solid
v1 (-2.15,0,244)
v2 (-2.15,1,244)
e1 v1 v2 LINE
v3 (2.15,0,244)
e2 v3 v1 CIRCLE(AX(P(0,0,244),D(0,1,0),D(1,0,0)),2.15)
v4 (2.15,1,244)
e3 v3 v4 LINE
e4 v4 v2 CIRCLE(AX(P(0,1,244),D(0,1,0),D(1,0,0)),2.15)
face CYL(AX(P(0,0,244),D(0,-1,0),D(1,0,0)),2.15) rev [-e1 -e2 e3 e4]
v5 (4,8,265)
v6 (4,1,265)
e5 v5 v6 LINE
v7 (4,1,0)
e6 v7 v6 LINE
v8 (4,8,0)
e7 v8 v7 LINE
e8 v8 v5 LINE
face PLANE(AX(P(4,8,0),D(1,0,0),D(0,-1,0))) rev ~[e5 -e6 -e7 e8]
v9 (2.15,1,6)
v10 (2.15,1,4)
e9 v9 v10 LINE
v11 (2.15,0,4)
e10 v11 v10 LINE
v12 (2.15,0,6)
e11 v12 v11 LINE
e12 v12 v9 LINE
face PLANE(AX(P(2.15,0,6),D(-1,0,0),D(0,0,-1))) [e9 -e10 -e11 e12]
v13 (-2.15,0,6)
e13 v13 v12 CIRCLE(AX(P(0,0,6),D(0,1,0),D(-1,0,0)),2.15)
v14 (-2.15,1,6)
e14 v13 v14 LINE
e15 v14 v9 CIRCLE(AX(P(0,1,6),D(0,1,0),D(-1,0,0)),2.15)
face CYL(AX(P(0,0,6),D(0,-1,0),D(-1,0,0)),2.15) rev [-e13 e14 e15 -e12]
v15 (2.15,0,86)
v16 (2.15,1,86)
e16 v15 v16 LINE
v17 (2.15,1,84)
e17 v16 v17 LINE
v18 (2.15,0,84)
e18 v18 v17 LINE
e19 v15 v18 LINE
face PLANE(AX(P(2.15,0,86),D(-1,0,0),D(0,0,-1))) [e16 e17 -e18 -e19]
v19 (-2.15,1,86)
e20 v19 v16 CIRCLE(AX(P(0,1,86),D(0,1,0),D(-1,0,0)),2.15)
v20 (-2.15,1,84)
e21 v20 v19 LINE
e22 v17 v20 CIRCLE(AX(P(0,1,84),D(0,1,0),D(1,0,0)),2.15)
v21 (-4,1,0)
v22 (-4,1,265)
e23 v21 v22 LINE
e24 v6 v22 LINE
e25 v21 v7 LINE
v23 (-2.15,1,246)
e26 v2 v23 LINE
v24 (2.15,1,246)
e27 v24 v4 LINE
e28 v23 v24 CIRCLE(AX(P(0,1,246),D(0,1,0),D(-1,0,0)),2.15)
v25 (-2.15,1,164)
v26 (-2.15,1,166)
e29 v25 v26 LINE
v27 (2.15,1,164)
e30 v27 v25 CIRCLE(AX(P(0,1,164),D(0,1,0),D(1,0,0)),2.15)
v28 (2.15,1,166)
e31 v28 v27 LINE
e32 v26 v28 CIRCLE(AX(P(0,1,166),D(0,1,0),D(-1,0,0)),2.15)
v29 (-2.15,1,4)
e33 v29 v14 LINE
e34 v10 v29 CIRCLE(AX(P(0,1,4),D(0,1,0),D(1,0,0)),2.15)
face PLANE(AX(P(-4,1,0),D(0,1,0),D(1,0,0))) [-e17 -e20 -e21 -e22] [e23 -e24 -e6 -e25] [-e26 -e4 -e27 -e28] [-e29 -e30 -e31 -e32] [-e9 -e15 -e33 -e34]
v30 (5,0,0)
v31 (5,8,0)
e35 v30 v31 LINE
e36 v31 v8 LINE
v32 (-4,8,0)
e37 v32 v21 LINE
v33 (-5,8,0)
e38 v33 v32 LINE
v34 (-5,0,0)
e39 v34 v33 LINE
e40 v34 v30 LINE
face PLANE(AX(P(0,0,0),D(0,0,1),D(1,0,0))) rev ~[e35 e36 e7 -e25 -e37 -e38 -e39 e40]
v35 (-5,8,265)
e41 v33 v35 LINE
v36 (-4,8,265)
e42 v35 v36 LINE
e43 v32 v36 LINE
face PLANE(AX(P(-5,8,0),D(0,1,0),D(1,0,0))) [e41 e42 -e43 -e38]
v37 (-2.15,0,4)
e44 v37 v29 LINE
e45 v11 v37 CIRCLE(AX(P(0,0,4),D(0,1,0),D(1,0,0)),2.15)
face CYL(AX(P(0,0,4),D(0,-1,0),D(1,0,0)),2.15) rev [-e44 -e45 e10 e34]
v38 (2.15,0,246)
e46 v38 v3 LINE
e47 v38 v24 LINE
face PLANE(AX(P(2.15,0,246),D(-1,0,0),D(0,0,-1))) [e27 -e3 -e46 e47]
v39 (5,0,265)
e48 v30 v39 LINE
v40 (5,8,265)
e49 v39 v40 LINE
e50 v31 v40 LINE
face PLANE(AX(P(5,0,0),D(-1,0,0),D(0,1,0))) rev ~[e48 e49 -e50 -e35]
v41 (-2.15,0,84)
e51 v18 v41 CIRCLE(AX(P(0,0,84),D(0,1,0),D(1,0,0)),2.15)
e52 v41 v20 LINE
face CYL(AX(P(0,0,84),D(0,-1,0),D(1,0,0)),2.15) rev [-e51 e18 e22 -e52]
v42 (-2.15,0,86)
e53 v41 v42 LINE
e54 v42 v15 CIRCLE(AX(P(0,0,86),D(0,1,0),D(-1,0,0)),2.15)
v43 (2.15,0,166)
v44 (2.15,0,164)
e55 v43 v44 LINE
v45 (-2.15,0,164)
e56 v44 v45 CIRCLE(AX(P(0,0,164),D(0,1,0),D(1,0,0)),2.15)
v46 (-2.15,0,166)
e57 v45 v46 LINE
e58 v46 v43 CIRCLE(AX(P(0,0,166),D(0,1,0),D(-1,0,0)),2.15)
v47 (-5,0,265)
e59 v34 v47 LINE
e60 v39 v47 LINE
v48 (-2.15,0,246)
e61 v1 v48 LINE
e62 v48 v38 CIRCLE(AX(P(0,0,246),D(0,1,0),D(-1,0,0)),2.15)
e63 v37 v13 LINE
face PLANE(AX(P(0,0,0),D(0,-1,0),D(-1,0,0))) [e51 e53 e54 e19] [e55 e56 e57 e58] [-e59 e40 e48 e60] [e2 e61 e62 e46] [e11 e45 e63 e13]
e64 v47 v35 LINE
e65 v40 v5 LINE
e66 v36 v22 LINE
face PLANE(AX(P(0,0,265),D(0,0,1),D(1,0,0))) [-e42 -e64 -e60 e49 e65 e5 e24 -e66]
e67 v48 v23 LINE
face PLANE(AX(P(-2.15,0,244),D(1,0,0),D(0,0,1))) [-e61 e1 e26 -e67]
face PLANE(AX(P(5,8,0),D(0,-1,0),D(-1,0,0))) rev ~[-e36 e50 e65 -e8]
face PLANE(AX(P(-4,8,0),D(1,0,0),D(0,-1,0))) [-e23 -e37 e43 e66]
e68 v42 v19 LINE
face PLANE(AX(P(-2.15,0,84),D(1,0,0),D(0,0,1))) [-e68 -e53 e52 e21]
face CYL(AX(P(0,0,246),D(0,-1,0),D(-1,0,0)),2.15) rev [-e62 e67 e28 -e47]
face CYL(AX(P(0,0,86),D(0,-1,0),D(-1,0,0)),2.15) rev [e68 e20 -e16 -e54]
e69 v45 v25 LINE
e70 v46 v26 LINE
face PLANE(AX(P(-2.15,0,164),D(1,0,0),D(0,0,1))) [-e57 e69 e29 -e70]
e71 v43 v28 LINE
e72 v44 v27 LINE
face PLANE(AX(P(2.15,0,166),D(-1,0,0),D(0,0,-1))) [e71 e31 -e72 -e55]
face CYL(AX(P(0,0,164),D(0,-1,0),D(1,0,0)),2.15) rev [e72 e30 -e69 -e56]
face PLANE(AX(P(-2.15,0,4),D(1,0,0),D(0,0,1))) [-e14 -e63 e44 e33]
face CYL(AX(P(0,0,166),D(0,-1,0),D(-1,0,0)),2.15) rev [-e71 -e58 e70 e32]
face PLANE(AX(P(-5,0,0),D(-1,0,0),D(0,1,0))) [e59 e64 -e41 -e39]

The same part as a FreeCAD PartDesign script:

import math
import FreeCAD as App
import Part
import Sketcher
Q = App.Units.Quantity


def add_polygon(sketch, points):
    """Adds a closed chain of lines whose ends are joined by coincident constraints."""
    first, n = sketch.GeometryCount, len(points)
    for a, b in zip(points, points[1:] + points[:1]):
        sketch.addGeometry(Part.LineSegment(App.Vector(*a, 0), App.Vector(*b, 0)), False)
    for i in range(n):
        sketch.addConstraint(Sketcher.Constraint("Coincident", first + i, 2, first + (i + 1) % n, 1))

doc = App.newDocument("Part")
body = doc.addObject("PartDesign::Body", "Body")

# Sketch on XY plane
sketch1 = body.newObject("Sketcher::SketchObject", "Sketch")
sketch1.AttachmentSupport = (doc.getObject("XY_Plane"), [""])
sketch1.MapMode = "FlatFace"
add_polygon(sketch1, [(-5, 0), (5, 0), (5, 8), (4, 8), (4, 1), (-4, 1), (-4, 8), (-5, 8)])  # lines 0-7
sketch1.addConstraint([
    Sketcher.Constraint("Horizontal", 0),
    Sketcher.Constraint("Vertical", 1),
    Sketcher.Constraint("Horizontal", 2),
    Sketcher.Constraint("Vertical", 3),
    Sketcher.Constraint("Horizontal", 4),
    Sketcher.Constraint("Vertical", 5),
    Sketcher.Constraint("Horizontal", 6),
    Sketcher.Constraint("Vertical", 7),
    Sketcher.Constraint("Symmetric", 0, 2, 7, 2, -1, 1),
    Sketcher.Constraint("Symmetric", 2, 2, 5, 2, -2),
    Sketcher.Constraint("Equal", 4, 1),
    Sketcher.Constraint("DistanceX", 2, 2, 2, 1, Q("1 mm")),
    Sketcher.Constraint("DistanceX", 4, 2, 4, 1, Q("8 mm")),
    Sketcher.Constraint("DistanceY", -1, 1, 3, 2, Q("1 mm")),
])
pad1 = body.newObject("PartDesign::Pad", "Pad")
pad1.Profile = sketch1
pad1.Length = 265

# Sketch on XZ plane
sketch2 = body.newObject("Sketcher::SketchObject", "Sketch001")
sketch2.AttachmentSupport = (doc.getObject("XZ_Plane"), [""])
sketch2.MapMode = "FlatFace"
sketch2.addGeometry([
    Part.ArcOfCircle(Part.Circle(App.Vector(0, 246, 0), App.Vector(0, 0, 1), 2.1), math.radians(0), math.radians(180)),  # 0
    Part.LineSegment(App.Vector(2.1, 246, 0), App.Vector(2.1, 244, 0)),  # 1
    Part.ArcOfCircle(Part.Circle(App.Vector(0, 244, 0), App.Vector(0, 0, 1), 2.1), math.radians(180), math.radians(360)),  # 2
    Part.LineSegment(App.Vector(-2.1, 244, 0), App.Vector(-2.1, 246, 0)),  # 3
    Part.ArcOfCircle(Part.Circle(App.Vector(0, 166, 0), App.Vector(0, 0, 1), 2.1), math.radians(0), math.radians(180)),  # 4
    Part.LineSegment(App.Vector(2.1, 166, 0), App.Vector(2.1, 164, 0)),  # 5
    Part.ArcOfCircle(Part.Circle(App.Vector(0, 164, 0), App.Vector(0, 0, 1), 2.1), math.radians(180), math.radians(360)),  # 6
    Part.LineSegment(App.Vector(-2.1, 164, 0), App.Vector(-2.1, 166, 0)),  # 7
    Part.ArcOfCircle(Part.Circle(App.Vector(0, 86, 0), App.Vector(0, 0, 1), 2.1), math.radians(0), math.radians(180)),  # 8
    Part.LineSegment(App.Vector(2.1, 86, 0), App.Vector(2.1, 84, 0)),  # 9
    Part.ArcOfCircle(Part.Circle(App.Vector(0, 84, 0), App.Vector(0, 0, 1), 2.1), math.radians(180), math.radians(360)),  # 10
    Part.LineSegment(App.Vector(-2.1, 84, 0), App.Vector(-2.1, 86, 0)),  # 11
    Part.ArcOfCircle(Part.Circle(App.Vector(0, 6, 0), App.Vector(0, 0, 1), 2.1), math.radians(0), math.radians(180)),  # 12
    Part.LineSegment(App.Vector(2.1, 6, 0), App.Vector(2.1, 4, 0)),  # 13
    Part.ArcOfCircle(Part.Circle(App.Vector(0, 4, 0), App.Vector(0, 0, 1), 2.1), math.radians(180), math.radians(360)),  # 14
    Part.LineSegment(App.Vector(-2.1, 4, 0), App.Vector(-2.1, 6, 0)),  # 15
], False)
sketch2.addConstraint([
    Sketcher.Constraint("Tangent", 0, 1, 1, 1),
    Sketcher.Constraint("Tangent", 1, 2, 2, 2),
    Sketcher.Constraint("Tangent", 2, 1, 3, 1),
    Sketcher.Constraint("Tangent", 3, 2, 0, 2),
    Sketcher.Constraint("Tangent", 4, 1, 5, 1),
    Sketcher.Constraint("Tangent", 5, 2, 6, 2),
    Sketcher.Constraint("Tangent", 6, 1, 7, 1),
    Sketcher.Constraint("Tangent", 7, 2, 4, 2),
    Sketcher.Constraint("Tangent", 8, 1, 9, 1),
    Sketcher.Constraint("Tangent", 9, 2, 10, 2),
    Sketcher.Constraint("Tangent", 10, 1, 11, 1),
    Sketcher.Constraint("Tangent", 11, 2, 8, 2),
    Sketcher.Constraint("Tangent", 12, 1, 13, 1),
    Sketcher.Constraint("Tangent", 13, 2, 14, 2),
    Sketcher.Constraint("Tangent", 14, 1, 15, 1),
    Sketcher.Constraint("Tangent", 15, 2, 12, 2),
    Sketcher.Constraint("Vertical", 1),
    Sketcher.Constraint("Vertical", 3),
    Sketcher.Constraint("Vertical", 5),
    Sketcher.Constraint("Vertical", 7),
    Sketcher.Constraint("Vertical", 9),
    Sketcher.Constraint("Vertical", 11),
    Sketcher.Constraint("Vertical", 13),
    Sketcher.Constraint("Vertical", 15),
    Sketcher.Constraint("Equal", 2, 4),
    Sketcher.Constraint("Equal", 6, 8),
    Sketcher.Constraint("Equal", 10, 12),
    Sketcher.Constraint("PointOnObject", 0, 3, -2),
    Sketcher.Constraint("PointOnObject", 4, 3, -2),
    Sketcher.Constraint("PointOnObject", 8, 3, -2),
    Sketcher.Constraint("PointOnObject", 12, 3, -2),
    Sketcher.Constraint("Equal", 3, 5),
    Sketcher.Constraint("Equal", 7, 9),
    Sketcher.Constraint("Equal", 11, 13),
    Sketcher.Constraint("Radius", 0, Q("2.15 mm")),
    Sketcher.Constraint("DistanceY", 4, 3, 0, 3, Q("80 mm")),
    Sketcher.Constraint("DistanceY", 8, 3, 4, 3, Q("80 mm")),
    Sketcher.Constraint("DistanceY", 12, 3, 8, 3, Q("80 mm")),
    Sketcher.Constraint("DistanceY", 1, 2, 1, 1, Q("2 mm")),
    Sketcher.Constraint("DistanceY", -1, 1, 0, 3, Q("246 mm")),
])
pocket1 = body.newObject("PartDesign::Pocket", "Pocket")
pocket1.Profile = sketch2
pocket1.Length = 1

doc.recompute()
